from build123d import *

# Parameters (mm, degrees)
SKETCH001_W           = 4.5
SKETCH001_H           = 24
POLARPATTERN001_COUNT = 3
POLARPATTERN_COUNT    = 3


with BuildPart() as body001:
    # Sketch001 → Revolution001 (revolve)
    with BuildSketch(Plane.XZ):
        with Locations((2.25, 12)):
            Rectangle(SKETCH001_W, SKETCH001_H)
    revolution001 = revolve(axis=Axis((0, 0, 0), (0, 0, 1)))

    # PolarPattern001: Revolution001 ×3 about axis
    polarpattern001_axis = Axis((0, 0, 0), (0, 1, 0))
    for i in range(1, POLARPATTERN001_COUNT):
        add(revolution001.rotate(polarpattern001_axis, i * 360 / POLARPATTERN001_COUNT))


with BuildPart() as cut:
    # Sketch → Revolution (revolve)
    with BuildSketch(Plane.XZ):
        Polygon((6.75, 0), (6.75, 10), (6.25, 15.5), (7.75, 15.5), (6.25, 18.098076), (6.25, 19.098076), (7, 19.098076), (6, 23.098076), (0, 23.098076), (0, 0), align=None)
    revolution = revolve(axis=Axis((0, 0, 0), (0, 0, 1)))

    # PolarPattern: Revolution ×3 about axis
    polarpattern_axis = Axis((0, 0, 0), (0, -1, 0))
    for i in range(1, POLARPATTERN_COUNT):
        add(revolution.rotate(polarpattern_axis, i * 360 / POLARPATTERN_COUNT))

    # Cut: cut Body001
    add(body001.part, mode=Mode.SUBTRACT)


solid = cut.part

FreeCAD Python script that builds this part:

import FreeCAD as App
import Part
import Sketcher
from FreeCAD import Vector
Q = App.Units.Quantity

doc = App.newDocument("Part")
body = doc.addObject("PartDesign::Body", "Body")

sketch1 = doc.addObject("Sketcher::SketchObject", "Sketch")
body.addObject(sketch1)
sketch1.AttachmentSupport = (doc.XZ_Plane, [""])
sketch1.MapMode = "FlatFace"
sketch1.addGeometry([
    Part.LineSegment(Vector(0, 24, 0), Vector(0, 0, 0)),
    Part.LineSegment(Vector(0, 0, 0), Vector(4.5, 0, 0)),
    Part.LineSegment(Vector(4.5, 0, 0), Vector(4.5, 24, 0)),
    Part.LineSegment(Vector(4.5, 24, 0), Vector(0, 24, 0)),
], False)
sketch1.addConstraint([
    Sketcher.Constraint("Coincident", 0, 2, 1, 1),
    Sketcher.Constraint("Coincident", 1, 2, 2, 1),
    Sketcher.Constraint("Coincident", 2, 2, 3, 1),
    Sketcher.Constraint("Coincident", 3, 2, 0, 1),
    Sketcher.Constraint("Vertical", 0),
    Sketcher.Constraint("Horizontal", 1),
    Sketcher.Constraint("Vertical", 2),
    Sketcher.Constraint("Horizontal", 3),
    Sketcher.Constraint("Coincident", 0, 2, -1, 1),
    Sketcher.Constraint("DistanceY", 0, 2, 0, 1, Q("24 mm")),
    Sketcher.Constraint("DistanceX", 1, 1, 1, 2, Q("4.5 mm")),
])
revolution = doc.addObject("PartDesign::Revolution", "Revolution")
body.addObject(revolution)
revolution.Profile = sketch1
revolution.ReferenceAxis = (sketch1, ["V_Axis"])
revolution.Angle = 360
doc.recompute()

polarpattern = doc.addObject("PartDesign::PolarPattern", "PolarPattern")
body.addObject(polarpattern)
polarpattern.Originals = [revolution]
polarpattern.Axis = (doc.Y_Axis, [""])
polarpattern.Angle = 360
polarpattern.Occurrences = 3
body.Tip = polarpattern
body2 = doc.addObject("PartDesign::Body", "Body001")

sketch2 = doc.addObject("Sketcher::SketchObject", "Sketch001")
body2.addObject(sketch2)
sketch2.AttachmentSupport = (doc.getObject("XZ_Plane001"), [""])
sketch2.MapMode = "FlatFace"
sketch2.addGeometry([
    Part.LineSegment(Vector(6.75, 0, 0), Vector(6.75, 10, 0)),
    Part.LineSegment(Vector(6.75, 10, 0), Vector(6.25, 15.5, 0)),
    Part.LineSegment(Vector(6.25, 15.5, 0), Vector(7.75, 15.5, 0)),
    Part.LineSegment(Vector(7.75, 15.5, 0), Vector(6.25, 18.098076, 0)),
    Part.LineSegment(Vector(6.25, 18.098076, 0), Vector(6.25, 19.098076, 0)),
    Part.LineSegment(Vector(6.25, 19.098076, 0), Vector(7, 19.098076, 0)),
    Part.LineSegment(Vector(7, 19.098076, 0), Vector(6, 23.098076, 0)),
    Part.LineSegment(Vector(6, 23.098076, 0), Vector(0, 23.098076, 0)),
    Part.LineSegment(Vector(0, 23.098076, 0), Vector(0, 0, 0)),
    Part.LineSegment(Vector(0, 0, 0), Vector(6.75, 0, 0)),
], False)
sketch2.addConstraint([
    Sketcher.Constraint("Coincident", 0, 2, 1, 1),
    Sketcher.Constraint("Coincident", 1, 2, 2, 1),
    Sketcher.Constraint("Coincident", 2, 2, 3, 1),
    Sketcher.Constraint("Coincident", 3, 2, 4, 1),
    Sketcher.Constraint("Coincident", 4, 2, 5, 1),
    Sketcher.Constraint("Coincident", 5, 2, 6, 1),
    Sketcher.Constraint("Coincident", 6, 2, 7, 1),
    Sketcher.Constraint("Coincident", 7, 2, 8, 1),
    Sketcher.Constraint("Coincident", 8, 2, 9, 1),
    Sketcher.Constraint("Coincident", 9, 2, 0, 1),
    Sketcher.Constraint("Vertical", 0),
    Sketcher.Constraint("Horizontal", 2),
    Sketcher.Constraint("Vertical", 4),
    Sketcher.Constraint("Horizontal", 5),
    Sketcher.Constraint("Horizontal", 7),
    Sketcher.Constraint("Vertical", 8),
    Sketcher.Constraint("Horizontal", 9),
    Sketcher.Constraint("Coincident", 8, 2, -1, 1),
    Sketcher.Constraint("Vertical", 1, 2, 3, 2),
    Sketcher.Constraint("DistanceX", 7, 2, 7, 1, Q("6 mm")),
    Sketcher.Constraint("DistanceY", 0, 1, 0, 2, Q("10 mm")),
    Sketcher.Constraint("DistanceY", 4, 1, 4, 2, Q("1 mm")),
    Sketcher.Constraint("Angle", 3, Q("120.000002 deg")),
    Sketcher.Constraint("Distance", 3, Q("3 mm")),
    Sketcher.Constraint("DistanceX", -1, 1, 5, 2, Q("7 mm")),
    Sketcher.Constraint("DistanceX", 0, 2, 2, 2, Q("1 mm")),
    Sketcher.Constraint("DistanceY", 4, 2, 6, 2, Q("4 mm")),
    Sketcher.Constraint("DistanceX", 5, 1, 5, 2, Q("0.75 mm")),
    Sketcher.Constraint("DistanceY", -1, 1, 1, 2, Q("15.5 mm")),
])
revolution2 = doc.addObject("PartDesign::Revolution", "Revolution001")
body2.addObject(revolution2)
revolution2.Profile = sketch2
revolution2.ReferenceAxis = (sketch2, ["V_Axis"])
revolution2.Angle = 360
doc.recompute()

polarpattern2 = doc.addObject("PartDesign::PolarPattern", "PolarPattern001")
body2.addObject(polarpattern2)
polarpattern2.Originals = [revolution2]
polarpattern2.Axis = (doc.getObject("Y_Axis001"), [""])
polarpattern2.Angle = 360
polarpattern2.Occurrences = 3
body2.Tip = polarpattern2
doc.recompute()

boolean = doc.addObject("PartDesign::Boolean", "Boolean")
body2.addObject(boolean)
boolean.Type = "Cut"
boolean.addObjects([body])

doc.recompute()
